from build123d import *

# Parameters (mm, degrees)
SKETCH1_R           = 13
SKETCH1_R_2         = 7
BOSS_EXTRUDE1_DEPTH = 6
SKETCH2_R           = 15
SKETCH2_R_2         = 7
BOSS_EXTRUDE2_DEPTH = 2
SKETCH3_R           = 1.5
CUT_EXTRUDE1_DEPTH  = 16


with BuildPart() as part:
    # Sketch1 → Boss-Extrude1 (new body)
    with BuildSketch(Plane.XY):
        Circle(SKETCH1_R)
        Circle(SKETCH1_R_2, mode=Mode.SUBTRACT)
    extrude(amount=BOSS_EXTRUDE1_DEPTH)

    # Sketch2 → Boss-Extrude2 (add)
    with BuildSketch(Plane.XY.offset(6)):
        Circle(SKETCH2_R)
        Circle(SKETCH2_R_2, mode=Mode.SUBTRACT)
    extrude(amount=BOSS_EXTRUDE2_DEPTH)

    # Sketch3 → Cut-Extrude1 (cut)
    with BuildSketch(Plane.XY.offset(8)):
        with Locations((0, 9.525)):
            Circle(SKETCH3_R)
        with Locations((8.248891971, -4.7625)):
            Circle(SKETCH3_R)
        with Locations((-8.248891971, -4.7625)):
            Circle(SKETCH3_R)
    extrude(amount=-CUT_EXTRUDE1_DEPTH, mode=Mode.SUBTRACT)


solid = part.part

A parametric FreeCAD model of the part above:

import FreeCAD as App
import Part
import Sketcher
Q = App.Units.Quantity

doc = App.newDocument("Part")
body = doc.addObject("PartDesign::Body", "Body")

# Sketch on XY plane
sketch1 = doc.addObject("Sketcher::SketchObject", "Sketch")
body.addObject(sketch1)
sketch1.AttachmentSupport = (doc.XY_Plane, [""])
sketch1.MapMode = "FlatFace"
sketch1.addGeometry([
    Part.Circle(App.Vector(0, 0, 0), App.Vector(0, 0, 1), 13),
    Part.Circle(App.Vector(0, 0, 0), App.Vector(0, 0, 1), 7),
], False)
sketch1.addConstraint([
    Sketcher.Constraint("Coincident", 0, 3, -1, 1),
    Sketcher.Constraint("Coincident", 1, 3, -1, 1),
    Sketcher.Constraint("Diameter", 0, Q("26 mm")),
    Sketcher.Constraint("Diameter", 1, Q("14 mm")),
])
pad1 = doc.addObject("PartDesign::Pad", "Pad")
body.addObject(pad1)
pad1.Profile = sketch1
pad1.Length = 6

# Sketch on XY plane
sketch2 = doc.addObject("Sketcher::SketchObject", "Sketch001")
body.addObject(sketch2)
sketch2.AttachmentSupport = (doc.XY_Plane, [""])
sketch2.MapMode = "FlatFace"
sketch2.AttachmentOffset = App.Placement(App.Vector(0, 0, 6), App.Rotation())
sketch2.addGeometry([
    Part.Circle(App.Vector(0, 0, 0), App.Vector(0, 0, 1), 15),
    Part.Circle(App.Vector(0, 0, 0), App.Vector(0, 0, 1), 7),
], False)
sketch2.addConstraint([
    Sketcher.Constraint("Coincident", 0, 3, -1, 1),
    Sketcher.Constraint("Coincident", 1, 3, -1, 1),
    Sketcher.Constraint("Diameter", 0, Q("30 mm")),
    Sketcher.Constraint("Diameter", 1, Q("14 mm")),
])
pad2 = doc.addObject("PartDesign::Pad", "Pad001")
body.addObject(pad2)
pad2.Profile = sketch2
pad2.Length = 2

# Sketch on XY plane
sketch3 = doc.addObject("Sketcher::SketchObject", "Sketch002")
body.addObject(sketch3)
sketch3.AttachmentSupport = (doc.XY_Plane, [""])
sketch3.MapMode = "FlatFace"
sketch3.AttachmentOffset = App.Placement(App.Vector(0, 0, 8), App.Rotation())
sketch3.addGeometry([
    Part.Circle(App.Vector(0, 9.525, 0), App.Vector(0, 0, 1), 1.5),
    Part.Circle(App.Vector(8.248892, -4.7625, 0), App.Vector(0, 0, 1), 1.5),
    Part.Circle(App.Vector(-8.248892, -4.7625, 0), App.Vector(0, 0, 1), 1.5),
], False)
sketch3.addConstraint([
    Sketcher.Constraint("Equal", 0, 1),
    Sketcher.Constraint("Equal", 1, 2),
    Sketcher.Constraint("Symmetric", 1, 3, 2, 3, -2),
    Sketcher.Constraint("PointOnObject", 0, 3, -2),
    Sketcher.Constraint("Diameter", 0, Q("3 mm")),
    Sketcher.Constraint("DistanceY", -1, 1, 0, 3, Q("9.525 mm")),
    Sketcher.Constraint("DistanceY", 1, 3, -1, 1, Q("4.7625 mm")),
    Sketcher.Constraint("DistanceX", -1, 1, 1, 3, Q("8.248892 mm")),
])
pocket1 = doc.addObject("PartDesign::Pocket", "Pocket")
body.addObject(pocket1)
pocket1.Profile = sketch3
pocket1.Length = 16

doc.recompute()
